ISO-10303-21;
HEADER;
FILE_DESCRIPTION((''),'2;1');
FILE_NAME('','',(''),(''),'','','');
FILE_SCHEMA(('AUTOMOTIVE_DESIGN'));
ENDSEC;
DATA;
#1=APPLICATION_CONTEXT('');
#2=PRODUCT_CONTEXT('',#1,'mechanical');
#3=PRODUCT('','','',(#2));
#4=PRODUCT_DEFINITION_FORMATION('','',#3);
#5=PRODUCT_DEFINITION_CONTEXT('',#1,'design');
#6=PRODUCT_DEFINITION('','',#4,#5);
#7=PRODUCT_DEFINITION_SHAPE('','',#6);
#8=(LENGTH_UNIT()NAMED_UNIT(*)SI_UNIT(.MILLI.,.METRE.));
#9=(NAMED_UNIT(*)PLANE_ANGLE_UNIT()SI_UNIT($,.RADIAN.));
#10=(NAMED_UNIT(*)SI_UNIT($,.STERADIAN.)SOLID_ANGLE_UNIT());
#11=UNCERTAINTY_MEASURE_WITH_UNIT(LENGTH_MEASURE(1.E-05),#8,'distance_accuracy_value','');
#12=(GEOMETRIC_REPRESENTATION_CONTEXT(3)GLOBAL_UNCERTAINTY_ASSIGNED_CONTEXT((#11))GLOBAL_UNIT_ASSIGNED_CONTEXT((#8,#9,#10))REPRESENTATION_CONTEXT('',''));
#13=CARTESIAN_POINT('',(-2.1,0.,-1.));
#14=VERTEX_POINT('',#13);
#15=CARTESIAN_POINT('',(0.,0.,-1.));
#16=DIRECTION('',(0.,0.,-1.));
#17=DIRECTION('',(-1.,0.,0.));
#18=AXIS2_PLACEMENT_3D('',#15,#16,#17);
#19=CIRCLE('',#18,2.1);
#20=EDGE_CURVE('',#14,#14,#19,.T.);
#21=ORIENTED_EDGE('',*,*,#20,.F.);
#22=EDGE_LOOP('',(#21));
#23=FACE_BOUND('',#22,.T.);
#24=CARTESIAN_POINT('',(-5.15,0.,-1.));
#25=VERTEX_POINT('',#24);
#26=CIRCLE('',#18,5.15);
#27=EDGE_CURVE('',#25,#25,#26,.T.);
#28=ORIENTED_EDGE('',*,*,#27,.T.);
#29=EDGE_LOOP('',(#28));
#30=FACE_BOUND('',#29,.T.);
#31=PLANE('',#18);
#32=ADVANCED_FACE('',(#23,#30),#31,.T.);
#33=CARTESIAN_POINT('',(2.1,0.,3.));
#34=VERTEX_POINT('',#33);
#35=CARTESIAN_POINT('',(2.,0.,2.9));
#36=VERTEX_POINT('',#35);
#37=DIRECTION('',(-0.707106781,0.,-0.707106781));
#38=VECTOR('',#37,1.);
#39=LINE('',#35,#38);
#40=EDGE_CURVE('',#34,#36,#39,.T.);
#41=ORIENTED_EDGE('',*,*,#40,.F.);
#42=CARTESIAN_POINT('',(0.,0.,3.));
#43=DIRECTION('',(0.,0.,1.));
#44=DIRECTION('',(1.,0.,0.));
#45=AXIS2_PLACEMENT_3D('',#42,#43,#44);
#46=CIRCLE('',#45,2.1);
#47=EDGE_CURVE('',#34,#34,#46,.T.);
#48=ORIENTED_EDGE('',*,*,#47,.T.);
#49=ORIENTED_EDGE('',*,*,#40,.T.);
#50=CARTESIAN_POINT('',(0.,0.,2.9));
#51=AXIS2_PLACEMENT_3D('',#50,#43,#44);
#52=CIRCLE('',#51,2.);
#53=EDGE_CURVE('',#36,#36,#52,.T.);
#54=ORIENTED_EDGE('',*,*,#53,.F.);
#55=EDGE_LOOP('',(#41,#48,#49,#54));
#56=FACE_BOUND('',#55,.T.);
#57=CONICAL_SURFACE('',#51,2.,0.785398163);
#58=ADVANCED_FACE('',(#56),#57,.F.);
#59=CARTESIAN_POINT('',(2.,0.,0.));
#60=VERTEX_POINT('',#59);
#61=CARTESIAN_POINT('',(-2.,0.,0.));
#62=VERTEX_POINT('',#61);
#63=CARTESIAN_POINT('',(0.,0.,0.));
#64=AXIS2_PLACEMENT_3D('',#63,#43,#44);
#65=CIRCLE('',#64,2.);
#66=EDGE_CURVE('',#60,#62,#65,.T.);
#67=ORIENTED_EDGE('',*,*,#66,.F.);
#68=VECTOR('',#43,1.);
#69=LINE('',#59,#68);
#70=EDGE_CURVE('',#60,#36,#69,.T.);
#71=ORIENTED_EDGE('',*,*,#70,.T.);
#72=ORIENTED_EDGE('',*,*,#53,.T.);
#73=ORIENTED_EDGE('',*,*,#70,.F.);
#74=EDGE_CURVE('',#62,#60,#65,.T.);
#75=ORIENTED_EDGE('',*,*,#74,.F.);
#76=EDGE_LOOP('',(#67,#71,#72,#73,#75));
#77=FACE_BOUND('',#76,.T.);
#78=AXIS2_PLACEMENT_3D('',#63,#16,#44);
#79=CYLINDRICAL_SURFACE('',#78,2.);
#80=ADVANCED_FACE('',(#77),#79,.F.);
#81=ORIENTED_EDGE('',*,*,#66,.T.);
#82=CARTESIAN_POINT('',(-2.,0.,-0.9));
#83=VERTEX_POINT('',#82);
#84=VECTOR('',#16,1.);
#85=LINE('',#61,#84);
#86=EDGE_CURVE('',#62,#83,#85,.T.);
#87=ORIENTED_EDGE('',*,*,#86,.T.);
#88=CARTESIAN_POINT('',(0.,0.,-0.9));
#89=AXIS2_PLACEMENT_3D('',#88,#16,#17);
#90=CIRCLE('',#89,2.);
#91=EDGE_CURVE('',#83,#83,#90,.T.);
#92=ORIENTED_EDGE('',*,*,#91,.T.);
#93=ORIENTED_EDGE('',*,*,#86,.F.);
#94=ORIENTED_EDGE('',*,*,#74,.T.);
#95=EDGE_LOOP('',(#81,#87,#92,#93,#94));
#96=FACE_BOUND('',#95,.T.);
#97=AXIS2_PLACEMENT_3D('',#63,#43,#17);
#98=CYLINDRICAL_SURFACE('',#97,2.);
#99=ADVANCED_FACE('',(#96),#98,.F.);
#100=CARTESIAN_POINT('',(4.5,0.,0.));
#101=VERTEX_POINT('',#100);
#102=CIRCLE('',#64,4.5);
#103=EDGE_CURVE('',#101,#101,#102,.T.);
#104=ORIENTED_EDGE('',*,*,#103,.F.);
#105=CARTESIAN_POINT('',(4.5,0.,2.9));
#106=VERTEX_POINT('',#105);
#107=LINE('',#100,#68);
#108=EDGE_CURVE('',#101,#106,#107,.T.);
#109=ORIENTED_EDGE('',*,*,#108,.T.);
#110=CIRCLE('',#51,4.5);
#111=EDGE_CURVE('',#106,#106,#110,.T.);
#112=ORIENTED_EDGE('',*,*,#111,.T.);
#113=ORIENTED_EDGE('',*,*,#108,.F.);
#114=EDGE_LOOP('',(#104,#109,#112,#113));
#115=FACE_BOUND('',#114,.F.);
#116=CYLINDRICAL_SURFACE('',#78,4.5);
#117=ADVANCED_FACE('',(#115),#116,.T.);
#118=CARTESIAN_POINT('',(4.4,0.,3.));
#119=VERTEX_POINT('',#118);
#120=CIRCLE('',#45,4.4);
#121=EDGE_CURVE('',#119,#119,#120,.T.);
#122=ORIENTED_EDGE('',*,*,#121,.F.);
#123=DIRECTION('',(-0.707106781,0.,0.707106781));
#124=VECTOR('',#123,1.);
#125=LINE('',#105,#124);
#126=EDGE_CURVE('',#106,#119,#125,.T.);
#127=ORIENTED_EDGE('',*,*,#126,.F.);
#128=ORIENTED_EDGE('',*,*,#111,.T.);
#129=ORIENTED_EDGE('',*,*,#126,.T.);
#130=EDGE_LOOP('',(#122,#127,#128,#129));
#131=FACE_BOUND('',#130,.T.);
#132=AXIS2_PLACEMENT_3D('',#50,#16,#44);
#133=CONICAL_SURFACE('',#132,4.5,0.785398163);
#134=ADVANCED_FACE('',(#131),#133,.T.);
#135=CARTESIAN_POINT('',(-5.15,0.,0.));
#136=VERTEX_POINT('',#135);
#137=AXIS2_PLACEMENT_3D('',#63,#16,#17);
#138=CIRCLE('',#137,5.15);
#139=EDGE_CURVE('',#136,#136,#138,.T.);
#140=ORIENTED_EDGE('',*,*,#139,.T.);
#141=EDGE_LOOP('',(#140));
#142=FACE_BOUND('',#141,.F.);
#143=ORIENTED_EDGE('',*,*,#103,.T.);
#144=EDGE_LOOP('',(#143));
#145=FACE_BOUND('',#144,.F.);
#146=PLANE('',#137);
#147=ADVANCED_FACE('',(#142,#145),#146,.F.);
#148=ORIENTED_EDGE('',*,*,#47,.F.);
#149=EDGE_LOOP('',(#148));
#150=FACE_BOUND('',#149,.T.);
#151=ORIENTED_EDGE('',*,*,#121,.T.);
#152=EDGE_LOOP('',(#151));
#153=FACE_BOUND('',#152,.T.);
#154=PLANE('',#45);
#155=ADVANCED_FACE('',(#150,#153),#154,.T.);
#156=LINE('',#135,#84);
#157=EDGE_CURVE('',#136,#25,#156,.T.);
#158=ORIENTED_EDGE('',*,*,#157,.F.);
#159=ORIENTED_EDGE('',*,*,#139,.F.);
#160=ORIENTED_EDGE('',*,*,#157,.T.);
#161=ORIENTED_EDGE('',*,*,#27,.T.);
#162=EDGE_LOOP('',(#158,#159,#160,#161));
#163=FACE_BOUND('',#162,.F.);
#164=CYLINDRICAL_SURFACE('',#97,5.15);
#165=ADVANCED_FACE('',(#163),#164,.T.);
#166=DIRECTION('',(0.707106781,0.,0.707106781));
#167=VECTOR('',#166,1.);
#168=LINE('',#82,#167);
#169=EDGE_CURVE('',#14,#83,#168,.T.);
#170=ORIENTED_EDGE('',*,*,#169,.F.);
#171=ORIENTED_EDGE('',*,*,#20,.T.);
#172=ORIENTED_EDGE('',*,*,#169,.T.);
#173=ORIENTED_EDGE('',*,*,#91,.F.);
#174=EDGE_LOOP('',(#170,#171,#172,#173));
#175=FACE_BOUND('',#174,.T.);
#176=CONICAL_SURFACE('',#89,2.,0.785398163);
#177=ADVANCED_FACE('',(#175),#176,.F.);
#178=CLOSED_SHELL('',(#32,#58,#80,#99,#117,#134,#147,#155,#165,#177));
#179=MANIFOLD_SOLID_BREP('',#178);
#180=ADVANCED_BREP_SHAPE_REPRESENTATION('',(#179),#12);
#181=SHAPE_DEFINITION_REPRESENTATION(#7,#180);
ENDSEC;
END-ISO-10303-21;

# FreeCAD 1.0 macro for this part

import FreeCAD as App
import Part
import Sketcher
from FreeCAD import Vector
Q = App.Units.Quantity


def edges_at(feature, points):
    """Names of the edges that pass closest to the given points."""
    edges = feature.Shape.Edges
    near = lambda p: min(range(len(edges)), key=lambda i: edges[i].distToShape(Part.Vertex(*p))[0])
    return sorted({f"Edge{near(p) + 1}" for p in points})

doc = App.newDocument("Part")
params = doc.addObject("Spreadsheet::Sheet", "Params")
for row, (alias, value) in enumerate([
    ("sketch1_diameter", "9 mm"),
    ("sketch1_diameter2", "4 mm"),
    ("pad1_length", "3 mm"),
    ("sketch2_diameter", "4 mm"),
    ("sketch2_diameter2", "10.3 mm"),
    ("pad2_length", "1 mm"),
    ("chamfer_size", "0.1 mm"),
], start=1):
    params.set(f"A{row}", alias)
    params.set(f"B{row}", "=" + value)
    params.setAlias(f"B{row}", alias)

body = doc.addObject("PartDesign::Body", "Body")

sketch1 = body.newObject("Sketcher::SketchObject", "Sketch")
sketch1.AttachmentSupport = (doc.getObject("XY_Plane"), [""])
sketch1.MapMode = "FlatFace"
sketch1.addGeometry([
    Part.Circle(Vector(0, 0, 0), Vector(0, 0, 1), 4.5),
    Part.Circle(Vector(0, 0, 0), Vector(0, 0, 1), 2),
], False)
sketch1.addConstraint([
    Sketcher.Constraint("Coincident", 0, 3, -1, 1),
    Sketcher.Constraint("Coincident", 1, 3, -1, 1),
    Sketcher.Constraint("Diameter", 0, Q("9 mm")),
    Sketcher.Constraint("Diameter", 1, Q("4 mm")),
])
sketch1.setExpression("Constraints[2]", "Params.sketch1_diameter")
sketch1.setExpression("Constraints[3]", "Params.sketch1_diameter2")
pad1 = body.newObject("PartDesign::Pad", "Pad")
pad1.Profile = sketch1
pad1.setExpression("Length", "Params.pad1_length")

sketch2 = body.newObject("Sketcher::SketchObject", "Sketch001")
sketch2.AttachmentSupport = (doc.getObject("XY_Plane"), [""])
sketch2.MapMode = "FlatFace"
sketch2.addGeometry([
    Part.Circle(Vector(0, 0, 0), Vector(0, 0, 1), 5.2),
    Part.Circle(Vector(0, 0, 0), Vector(0, 0, 1), 2),
], False)
sketch2.addConstraint([
    Sketcher.Constraint("Coincident", 0, 3, -1, 1),
    Sketcher.Constraint("Coincident", 1, 3, -1, 1),
    Sketcher.Constraint("Diameter", 1, Q("4 mm")),
    Sketcher.Constraint("Diameter", 0, Q("10.3 mm")),
])
sketch2.setExpression("Constraints[2]", "Params.sketch2_diameter")
sketch2.setExpression("Constraints[3]", "Params.sketch2_diameter2")
pad2 = body.newObject("PartDesign::Pad", "Pad001")
pad2.Profile = sketch2
pad2.setExpression("Length", "Params.pad2_length")
pad2.Reversed = True
doc.recompute()

chamfer = body.newObject("PartDesign::Chamfer", "Chamfer")
chamfer.Base = (pad2, edges_at(pad2, [(-4.5, 0, 3), (-2, 0, 3), (2, 0, -1)]))
chamfer.setExpression("Size", "Params.chamfer_size")

doc.recompute()
